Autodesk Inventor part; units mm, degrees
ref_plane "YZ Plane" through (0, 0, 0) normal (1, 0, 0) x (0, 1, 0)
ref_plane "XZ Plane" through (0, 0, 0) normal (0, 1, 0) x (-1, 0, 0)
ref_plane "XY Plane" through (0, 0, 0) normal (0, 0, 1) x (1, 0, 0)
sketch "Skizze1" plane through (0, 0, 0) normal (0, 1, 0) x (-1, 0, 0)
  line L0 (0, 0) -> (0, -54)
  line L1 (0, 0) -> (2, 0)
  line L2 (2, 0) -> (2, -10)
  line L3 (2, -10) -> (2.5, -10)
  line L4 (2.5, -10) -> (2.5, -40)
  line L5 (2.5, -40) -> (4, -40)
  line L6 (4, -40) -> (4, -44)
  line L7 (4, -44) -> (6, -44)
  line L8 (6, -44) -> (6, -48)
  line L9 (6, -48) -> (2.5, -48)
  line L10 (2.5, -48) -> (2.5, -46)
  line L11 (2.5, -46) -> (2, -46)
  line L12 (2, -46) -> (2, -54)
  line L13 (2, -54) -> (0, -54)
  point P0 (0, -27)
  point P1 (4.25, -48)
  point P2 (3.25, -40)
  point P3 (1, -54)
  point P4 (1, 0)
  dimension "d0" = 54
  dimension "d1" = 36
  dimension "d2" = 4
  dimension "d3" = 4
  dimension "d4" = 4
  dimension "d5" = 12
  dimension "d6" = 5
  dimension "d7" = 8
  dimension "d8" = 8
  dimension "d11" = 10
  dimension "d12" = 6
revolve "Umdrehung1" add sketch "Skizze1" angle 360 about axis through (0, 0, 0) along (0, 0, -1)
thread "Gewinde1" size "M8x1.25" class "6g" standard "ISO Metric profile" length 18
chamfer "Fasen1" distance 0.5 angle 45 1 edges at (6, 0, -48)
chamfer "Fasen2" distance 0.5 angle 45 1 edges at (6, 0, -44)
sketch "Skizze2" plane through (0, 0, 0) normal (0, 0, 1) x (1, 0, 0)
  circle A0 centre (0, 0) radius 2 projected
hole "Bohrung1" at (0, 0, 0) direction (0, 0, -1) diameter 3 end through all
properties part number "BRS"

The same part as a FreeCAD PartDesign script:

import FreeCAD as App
import Part
import Sketcher


def edges_at(feature, points):
    """Names of the edges that pass closest to the given points."""
    edges = feature.Shape.Edges
    near = lambda p: min(range(len(edges)), key=lambda i: edges[i].distToShape(Part.Vertex(*p))[0])
    return sorted({f"Edge{near(p) + 1}" for p in points})

doc = App.newDocument("Part")
body = doc.addObject("PartDesign::Body", "Body")

sketch1 = body.newObject("Sketcher::SketchObject", "Sketch")
sketch1.AttachmentSupport = (doc.getObject("XZ_Plane"), [""])
sketch1.MapMode = "FlatFace"
sketch1.addGeometry(Part.LineSegment(App.Vector(-2, 0, 0), App.Vector(0, 0, 0)), False)
sketch1.addGeometry(Part.LineSegment(App.Vector(0, 0, 0), App.Vector(0, -54, 0)), False)
sketch1.addGeometry(Part.LineSegment(App.Vector(0, -54, 0), App.Vector(-2, -54, 0)), False)
sketch1.addGeometry(Part.LineSegment(App.Vector(-2, -54, 0), App.Vector(-2, -46, 0)), False)
sketch1.addGeometry(Part.LineSegment(App.Vector(-2, -46, 0), App.Vector(-2.5, -46, 0)), False)
sketch1.addGeometry(Part.LineSegment(App.Vector(-2.5, -46, 0), App.Vector(-2.5, -48, 0)), False)
sketch1.addGeometry(Part.LineSegment(App.Vector(-2.5, -48, 0), App.Vector(-6, -48, 0)), False)
sketch1.addGeometry(Part.LineSegment(App.Vector(-6, -48, 0), App.Vector(-6, -44, 0)), False)
sketch1.addGeometry(Part.LineSegment(App.Vector(-6, -44, 0), App.Vector(-4, -44, 0)), False)
sketch1.addGeometry(Part.LineSegment(App.Vector(-4, -44, 0), App.Vector(-4, -40, 0)), False)
sketch1.addGeometry(Part.LineSegment(App.Vector(-4, -40, 0), App.Vector(-2.5, -40, 0)), False)
sketch1.addGeometry(Part.LineSegment(App.Vector(-2.5, -40, 0), App.Vector(-2.5, -10, 0)), False)
sketch1.addGeometry(Part.LineSegment(App.Vector(-2.5, -10, 0), App.Vector(-2, -10, 0)), False)
sketch1.addGeometry(Part.LineSegment(App.Vector(-2, -10, 0), App.Vector(-2, 0, 0)), False)
sketch1.addConstraint(Sketcher.Constraint("Coincident", 0, 2, 1, 1))
sketch1.addConstraint(Sketcher.Constraint("Coincident", 1, 2, 2, 1))
sketch1.addConstraint(Sketcher.Constraint("Coincident", 2, 2, 3, 1))
sketch1.addConstraint(Sketcher.Constraint("Coincident", 3, 2, 4, 1))
sketch1.addConstraint(Sketcher.Constraint("Coincident", 4, 2, 5, 1))
sketch1.addConstraint(Sketcher.Constraint("Coincident", 5, 2, 6, 1))
sketch1.addConstraint(Sketcher.Constraint("Coincident", 6, 2, 7, 1))
sketch1.addConstraint(Sketcher.Constraint("Coincident", 7, 2, 8, 1))
sketch1.addConstraint(Sketcher.Constraint("Coincident", 8, 2, 9, 1))
sketch1.addConstraint(Sketcher.Constraint("Coincident", 9, 2, 10, 1))
sketch1.addConstraint(Sketcher.Constraint("Coincident", 10, 2, 11, 1))
sketch1.addConstraint(Sketcher.Constraint("Coincident", 11, 2, 12, 1))
sketch1.addConstraint(Sketcher.Constraint("Coincident", 12, 2, 13, 1))
sketch1.addConstraint(Sketcher.Constraint("Coincident", 13, 2, 0, 1))
sketch1.addConstraint(Sketcher.Constraint("Horizontal", 0))
sketch1.addConstraint(Sketcher.Constraint("Vertical", 1))
sketch1.addConstraint(Sketcher.Constraint("Horizontal", 2))
sketch1.addConstraint(Sketcher.Constraint("Vertical", 3))
sketch1.addConstraint(Sketcher.Constraint("Horizontal", 4))
sketch1.addConstraint(Sketcher.Constraint("Vertical", 5))
sketch1.addConstraint(Sketcher.Constraint("Horizontal", 6))
sketch1.addConstraint(Sketcher.Constraint("Vertical", 7))
sketch1.addConstraint(Sketcher.Constraint("Horizontal", 8))
sketch1.addConstraint(Sketcher.Constraint("Vertical", 9))
sketch1.addConstraint(Sketcher.Constraint("Horizontal", 10))
sketch1.addConstraint(Sketcher.Constraint("Vertical", 11))
sketch1.addConstraint(Sketcher.Constraint("Horizontal", 12))
sketch1.addConstraint(Sketcher.Constraint("Vertical", 13))
sketch1.addConstraint(Sketcher.Constraint("Coincident", 0, 2, -1, 1))
sketch1.addConstraint(Sketcher.Constraint("Vertical", 5, 2, 10, 2))
sketch1.addConstraint(Sketcher.Constraint("Vertical", 3, 2, 12, 2))
sketch1.addConstraint(Sketcher.Constraint("Equal", 2, 8))
sketch1.addConstraint(Sketcher.Constraint("Equal", 8, 5))
sketch1.addConstraint(Sketcher.Constraint("Equal", 7, 9))
sketch1.addConstraint(Sketcher.Constraint("DistanceY", 1, 2, 1, 1, 54.0))
sketch1.addConstraint(Sketcher.Constraint("DistanceY", 3, 1, 3, 2, 8.0))
sketch1.addConstraint(Sketcher.Constraint("DistanceY", 7, 1, 7, 2, 4.0))
sketch1.addConstraint(Sketcher.Constraint("DistanceY", 13, 1, 13, 2, 10.0))
sketch1.addConstraint(Sketcher.Constraint("DistanceX", 6, 2, -1, 1, 6.0))
sketch1.addConstraint(Sketcher.Constraint("DistanceX", 8, 2, -1, 1, 4.0))
sketch1.addConstraint(Sketcher.Constraint("DistanceX", 4, 2, 4, 1, 0.5))
revolution = body.newObject("PartDesign::Revolution", "Revolution")
revolution.Profile = sketch1
revolution.ReferenceAxis = (sketch1, ["V_Axis"])
revolution.Angle = 360
doc.recompute()

chamfer = body.newObject("PartDesign::Chamfer", "Chamfer")
chamfer.Base = (revolution, edges_at(revolution, [(6, 0, -48)]))
chamfer.Size = 0.5
doc.recompute()

chamfer2 = body.newObject("PartDesign::Chamfer", "Chamfer001")
chamfer2.Base = (chamfer, edges_at(chamfer, [(6, 0, -44)]))
chamfer2.Size = 0.5

sketch2 = body.newObject("Sketcher::SketchObject", "Sketch001")
sketch2.AttachmentSupport = (doc.getObject("XY_Plane"), [""])
sketch2.MapMode = "FlatFace"
sketch2.addGeometry(Part.Circle(App.Vector(0, 0, 0), App.Vector(0, 0, 1), 1.5), False)
sketch2.addConstraint(Sketcher.Constraint("Coincident", 0, 3, -1, 1))
sketch2.addConstraint(Sketcher.Constraint("Diameter", 0, 3.0))
doc.recompute()
hole = body.newObject("PartDesign::Hole", "Hole")
hole.Profile = sketch2
hole.ThreadType = "None"
hole.Diameter = 3
hole.DepthType = "ThroughAll"

doc.recompute()
